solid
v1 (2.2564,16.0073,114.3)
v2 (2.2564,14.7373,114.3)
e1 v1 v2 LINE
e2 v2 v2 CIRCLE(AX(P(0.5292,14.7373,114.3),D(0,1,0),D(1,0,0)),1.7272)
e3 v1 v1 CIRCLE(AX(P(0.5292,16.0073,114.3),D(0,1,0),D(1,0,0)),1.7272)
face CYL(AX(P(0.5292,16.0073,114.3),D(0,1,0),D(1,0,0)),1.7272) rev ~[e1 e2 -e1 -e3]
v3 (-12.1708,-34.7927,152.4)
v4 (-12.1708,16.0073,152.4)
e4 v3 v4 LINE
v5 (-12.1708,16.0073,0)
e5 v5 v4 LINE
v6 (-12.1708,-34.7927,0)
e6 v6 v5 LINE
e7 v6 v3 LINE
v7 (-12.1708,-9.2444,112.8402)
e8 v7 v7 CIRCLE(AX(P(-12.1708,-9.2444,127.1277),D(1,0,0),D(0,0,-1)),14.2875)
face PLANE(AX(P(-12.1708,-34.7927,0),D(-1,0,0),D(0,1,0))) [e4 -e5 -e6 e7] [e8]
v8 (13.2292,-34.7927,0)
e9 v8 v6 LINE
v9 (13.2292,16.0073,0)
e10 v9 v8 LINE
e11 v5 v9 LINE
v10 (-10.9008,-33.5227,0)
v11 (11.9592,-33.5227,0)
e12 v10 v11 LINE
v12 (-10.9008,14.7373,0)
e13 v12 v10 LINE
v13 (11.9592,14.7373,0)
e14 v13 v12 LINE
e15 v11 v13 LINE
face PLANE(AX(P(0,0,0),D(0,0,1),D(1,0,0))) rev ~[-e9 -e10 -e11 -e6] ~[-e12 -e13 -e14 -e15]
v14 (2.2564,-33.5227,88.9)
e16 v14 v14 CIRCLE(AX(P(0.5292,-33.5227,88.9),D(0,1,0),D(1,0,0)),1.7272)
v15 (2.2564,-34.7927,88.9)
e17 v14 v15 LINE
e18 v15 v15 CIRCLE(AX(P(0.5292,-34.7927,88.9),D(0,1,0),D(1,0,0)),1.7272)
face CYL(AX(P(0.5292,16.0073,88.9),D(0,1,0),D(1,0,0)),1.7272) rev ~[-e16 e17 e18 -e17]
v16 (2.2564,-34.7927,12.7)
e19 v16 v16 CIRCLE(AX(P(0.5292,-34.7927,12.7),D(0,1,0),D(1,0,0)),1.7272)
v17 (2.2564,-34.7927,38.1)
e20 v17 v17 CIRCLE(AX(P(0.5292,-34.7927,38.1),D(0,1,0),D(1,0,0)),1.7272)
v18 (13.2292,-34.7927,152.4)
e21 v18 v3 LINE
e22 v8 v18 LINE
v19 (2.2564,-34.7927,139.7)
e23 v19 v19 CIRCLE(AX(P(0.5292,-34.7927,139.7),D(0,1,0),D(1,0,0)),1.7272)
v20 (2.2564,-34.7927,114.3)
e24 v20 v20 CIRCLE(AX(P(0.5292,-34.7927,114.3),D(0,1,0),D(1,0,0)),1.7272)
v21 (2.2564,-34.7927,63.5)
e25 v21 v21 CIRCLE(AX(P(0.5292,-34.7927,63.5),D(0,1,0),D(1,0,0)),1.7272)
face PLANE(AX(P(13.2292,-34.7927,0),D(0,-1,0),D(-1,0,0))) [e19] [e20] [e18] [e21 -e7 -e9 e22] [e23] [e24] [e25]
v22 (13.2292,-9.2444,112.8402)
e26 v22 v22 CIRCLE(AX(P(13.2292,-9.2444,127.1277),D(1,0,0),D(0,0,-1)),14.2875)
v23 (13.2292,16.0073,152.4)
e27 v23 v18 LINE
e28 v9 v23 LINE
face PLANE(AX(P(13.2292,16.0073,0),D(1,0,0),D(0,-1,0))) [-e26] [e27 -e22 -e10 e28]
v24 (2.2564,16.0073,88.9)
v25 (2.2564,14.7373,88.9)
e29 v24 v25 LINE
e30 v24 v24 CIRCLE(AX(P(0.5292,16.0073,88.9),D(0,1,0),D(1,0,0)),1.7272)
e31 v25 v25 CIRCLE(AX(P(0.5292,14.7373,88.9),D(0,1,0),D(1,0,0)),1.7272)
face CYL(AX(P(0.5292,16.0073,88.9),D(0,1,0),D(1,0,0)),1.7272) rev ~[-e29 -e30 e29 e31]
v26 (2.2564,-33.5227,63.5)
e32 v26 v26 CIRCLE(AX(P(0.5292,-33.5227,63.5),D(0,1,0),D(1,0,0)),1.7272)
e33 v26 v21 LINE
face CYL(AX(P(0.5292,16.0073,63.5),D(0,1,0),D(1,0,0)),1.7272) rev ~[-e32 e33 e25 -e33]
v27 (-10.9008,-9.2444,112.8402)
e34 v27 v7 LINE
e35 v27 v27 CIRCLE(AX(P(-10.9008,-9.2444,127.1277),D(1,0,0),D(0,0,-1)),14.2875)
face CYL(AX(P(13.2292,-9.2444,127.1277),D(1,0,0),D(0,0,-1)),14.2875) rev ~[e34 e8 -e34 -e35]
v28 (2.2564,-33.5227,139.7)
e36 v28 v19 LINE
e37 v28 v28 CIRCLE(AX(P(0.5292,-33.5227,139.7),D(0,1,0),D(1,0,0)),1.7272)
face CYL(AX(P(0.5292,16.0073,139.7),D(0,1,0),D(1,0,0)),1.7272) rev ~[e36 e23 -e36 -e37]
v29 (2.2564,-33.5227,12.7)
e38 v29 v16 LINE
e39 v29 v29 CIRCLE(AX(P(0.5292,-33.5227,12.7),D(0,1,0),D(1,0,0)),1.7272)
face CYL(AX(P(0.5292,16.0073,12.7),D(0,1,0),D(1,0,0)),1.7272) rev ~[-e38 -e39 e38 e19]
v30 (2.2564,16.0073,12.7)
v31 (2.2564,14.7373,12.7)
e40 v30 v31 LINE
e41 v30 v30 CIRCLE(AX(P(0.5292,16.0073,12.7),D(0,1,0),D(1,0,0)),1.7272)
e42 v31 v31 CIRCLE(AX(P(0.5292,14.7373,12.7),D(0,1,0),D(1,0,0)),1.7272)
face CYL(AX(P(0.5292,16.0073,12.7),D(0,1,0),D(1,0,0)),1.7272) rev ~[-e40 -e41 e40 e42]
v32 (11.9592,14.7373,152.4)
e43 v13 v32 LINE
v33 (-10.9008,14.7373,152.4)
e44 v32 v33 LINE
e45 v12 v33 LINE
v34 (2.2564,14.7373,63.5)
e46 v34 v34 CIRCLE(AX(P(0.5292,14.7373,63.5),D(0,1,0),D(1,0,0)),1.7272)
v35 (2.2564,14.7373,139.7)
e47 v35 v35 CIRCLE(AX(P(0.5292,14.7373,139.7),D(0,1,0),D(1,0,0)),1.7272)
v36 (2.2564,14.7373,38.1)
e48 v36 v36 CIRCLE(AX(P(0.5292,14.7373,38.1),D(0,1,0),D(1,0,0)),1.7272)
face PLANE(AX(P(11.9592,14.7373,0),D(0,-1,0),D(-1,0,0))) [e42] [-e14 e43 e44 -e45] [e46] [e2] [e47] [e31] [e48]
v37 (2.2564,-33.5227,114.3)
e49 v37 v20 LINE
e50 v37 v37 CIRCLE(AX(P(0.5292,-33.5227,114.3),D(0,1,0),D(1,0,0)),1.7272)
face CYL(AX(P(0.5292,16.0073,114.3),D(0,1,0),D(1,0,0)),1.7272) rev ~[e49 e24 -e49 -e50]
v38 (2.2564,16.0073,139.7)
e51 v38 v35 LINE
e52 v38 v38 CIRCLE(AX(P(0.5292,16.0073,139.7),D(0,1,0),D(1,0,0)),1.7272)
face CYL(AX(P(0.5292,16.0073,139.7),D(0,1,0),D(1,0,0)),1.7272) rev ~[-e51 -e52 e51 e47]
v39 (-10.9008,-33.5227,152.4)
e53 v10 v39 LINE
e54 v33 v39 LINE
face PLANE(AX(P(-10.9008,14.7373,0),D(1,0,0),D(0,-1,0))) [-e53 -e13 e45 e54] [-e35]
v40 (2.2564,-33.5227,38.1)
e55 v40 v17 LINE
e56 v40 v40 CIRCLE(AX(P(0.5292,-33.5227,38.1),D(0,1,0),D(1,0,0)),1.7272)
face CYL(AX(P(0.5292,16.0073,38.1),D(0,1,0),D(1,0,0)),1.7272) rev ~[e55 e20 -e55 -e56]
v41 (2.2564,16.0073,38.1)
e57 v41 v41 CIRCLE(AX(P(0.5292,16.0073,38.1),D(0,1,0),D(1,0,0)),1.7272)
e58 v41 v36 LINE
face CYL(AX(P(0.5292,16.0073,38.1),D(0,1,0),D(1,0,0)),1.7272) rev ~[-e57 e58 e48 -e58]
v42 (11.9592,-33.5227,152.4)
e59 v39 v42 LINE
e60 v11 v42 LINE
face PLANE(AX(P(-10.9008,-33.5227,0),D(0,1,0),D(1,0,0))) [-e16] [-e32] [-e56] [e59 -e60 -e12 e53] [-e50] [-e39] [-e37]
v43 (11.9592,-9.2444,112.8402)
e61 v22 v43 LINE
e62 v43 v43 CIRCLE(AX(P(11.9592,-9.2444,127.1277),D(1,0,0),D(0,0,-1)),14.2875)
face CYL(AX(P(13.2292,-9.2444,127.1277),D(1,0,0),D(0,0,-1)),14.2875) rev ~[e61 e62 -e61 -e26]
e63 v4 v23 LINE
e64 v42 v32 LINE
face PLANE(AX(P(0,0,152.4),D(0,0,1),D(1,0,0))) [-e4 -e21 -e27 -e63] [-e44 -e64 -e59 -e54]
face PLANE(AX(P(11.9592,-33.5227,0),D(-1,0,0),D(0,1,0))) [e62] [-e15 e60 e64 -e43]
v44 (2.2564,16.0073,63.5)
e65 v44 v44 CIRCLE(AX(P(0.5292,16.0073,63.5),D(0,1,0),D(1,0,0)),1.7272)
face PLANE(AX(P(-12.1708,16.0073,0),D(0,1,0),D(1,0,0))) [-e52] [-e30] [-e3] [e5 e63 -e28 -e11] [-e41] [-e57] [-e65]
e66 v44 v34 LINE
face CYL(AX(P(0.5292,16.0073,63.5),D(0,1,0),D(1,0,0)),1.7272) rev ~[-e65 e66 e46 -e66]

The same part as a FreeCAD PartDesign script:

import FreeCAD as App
import Part
import Sketcher
Q = App.Units.Quantity


def add_polygon(sketch, points):
    """Adds a closed chain of lines whose ends are joined by coincident constraints."""
    first, n = sketch.GeometryCount, len(points)
    for a, b in zip(points, points[1:] + points[:1]):
        sketch.addGeometry(Part.LineSegment(App.Vector(*a, 0), App.Vector(*b, 0)), False)
    for i in range(n):
        sketch.addConstraint(Sketcher.Constraint("Coincident", first + i, 2, first + (i + 1) % n, 1))

doc = App.newDocument("Part")
body = doc.addObject("PartDesign::Body", "Body")

# Sketch on XY plane
sketch1 = body.newObject("Sketcher::SketchObject", "Sketch")
sketch1.AttachmentSupport = (doc.getObject("XY_Plane"), [""])
sketch1.MapMode = "FlatFace"
add_polygon(sketch1, [(13, 16), (-12, 16), (-12, -35), (13, -35)])  # lines 0-3
add_polygon(sketch1, [(-11, 15), (12, 15), (12, -34), (-11, -34)])  # lines 4-7
sketch1.addConstraint(Sketcher.Constraint("Horizontal", 0))
sketch1.addConstraint(Sketcher.Constraint("Vertical", 1))
sketch1.addConstraint(Sketcher.Constraint("Horizontal", 2))
sketch1.addConstraint(Sketcher.Constraint("Vertical", 3))
sketch1.addConstraint(Sketcher.Constraint("Horizontal", 4))
sketch1.addConstraint(Sketcher.Constraint("Vertical", 5))
sketch1.addConstraint(Sketcher.Constraint("Horizontal", 6))
sketch1.addConstraint(Sketcher.Constraint("Vertical", 7))
sketch1.addConstraint(Sketcher.Constraint("DistanceX", 0, 2, 0, 1, Q("1 in")))
sketch1.addConstraint(Sketcher.Constraint("DistanceY", 1, 2, 1, 1, Q("2 in")))
sketch1.addConstraint(Sketcher.Constraint("DistanceX", 4, 2, 3, 2, Q("0.05 in")))
sketch1.addConstraint(Sketcher.Constraint("DistanceY", 4, 2, 3, 2, Q("0.05 in")))
sketch1.addConstraint(Sketcher.Constraint("DistanceY", 2, 2, 5, 2, Q("0.05 in")))
sketch1.addConstraint(Sketcher.Constraint("DistanceX", 1, 2, 6, 2, Q("0.05 in")))
sketch1.addConstraint(Sketcher.Constraint("DistanceY", -1, 1, 0, 2, Q("0.6302 in")))
sketch1.addConstraint(Sketcher.Constraint("DistanceX", 0, 2, -1, 1, 12.1708))
pad1 = body.newObject("PartDesign::Pad", "Pad")
pad1.Profile = sketch1
pad1.Length = Q("6 in")

# Sketch on XZ plane
sketch2 = body.newObject("Sketcher::SketchObject", "Sketch001")
sketch2.AttachmentSupport = (doc.getObject("XZ_Plane"), [""])
sketch2.MapMode = "FlatFace"
sketch2.AttachmentOffset = App.Placement(App.Vector(0, 0, -0.6302087 * 25.4), App.Rotation())
sketch2.addGeometry(Part.Circle(App.Vector(0.5, 12.7, 0), App.Vector(0, 0, 1), 1.7), False)
sketch2.addConstraint(Sketcher.Constraint("Diameter", 0, Q("0.136 in")))
sketch2.addConstraint(Sketcher.Constraint("DistanceY", -1, 1, 0, 3, Q("0.5 in")))
sketch2.addConstraint(Sketcher.Constraint("DistanceX", -1, 1, 0, 3, 0.5292))
pocket1 = body.newObject("PartDesign::Pocket", "Pocket")
pocket1.Profile = sketch2
pocket1.Type = "ThroughAll"
pocket1.Reversed = True
doc.recompute()

linearpattern = body.newObject("PartDesign::LinearPattern", "LinearPattern")
linearpattern.Originals = [pocket1]
linearpattern.Direction = (doc.getObject("Z_Axis"), [""])
linearpattern.Mode = "offset"
linearpattern.Offset = Q("1 in")
linearpattern.Occurrences = 6
body.Tip = linearpattern

# Sketch on YZ plane
sketch3 = body.newObject("Sketcher::SketchObject", "Sketch002")
sketch3.AttachmentSupport = (doc.getObject("YZ_Plane"), [""])
sketch3.MapMode = "FlatFace"
sketch3.AttachmentOffset = App.Placement(App.Vector(0, 0, 13.2292), App.Rotation())
sketch3.addGeometry(Part.Circle(App.Vector(-9, 127, 0), App.Vector(0, 0, 1), 14), False)
sketch3.addConstraint(Sketcher.Constraint("Diameter", 0, Q("1.125 in")))
sketch3.addConstraint(Sketcher.Constraint("DistanceX", 0, 3, -1, 1, 9.2444))
sketch3.addConstraint(Sketcher.Constraint("DistanceY", -1, 1, 0, 3, 127.1277))
pocket2 = body.newObject("PartDesign::Pocket", "Pocket001")
pocket2.Profile = sketch3
pocket2.Type = "ThroughAll"

doc.recompute()
